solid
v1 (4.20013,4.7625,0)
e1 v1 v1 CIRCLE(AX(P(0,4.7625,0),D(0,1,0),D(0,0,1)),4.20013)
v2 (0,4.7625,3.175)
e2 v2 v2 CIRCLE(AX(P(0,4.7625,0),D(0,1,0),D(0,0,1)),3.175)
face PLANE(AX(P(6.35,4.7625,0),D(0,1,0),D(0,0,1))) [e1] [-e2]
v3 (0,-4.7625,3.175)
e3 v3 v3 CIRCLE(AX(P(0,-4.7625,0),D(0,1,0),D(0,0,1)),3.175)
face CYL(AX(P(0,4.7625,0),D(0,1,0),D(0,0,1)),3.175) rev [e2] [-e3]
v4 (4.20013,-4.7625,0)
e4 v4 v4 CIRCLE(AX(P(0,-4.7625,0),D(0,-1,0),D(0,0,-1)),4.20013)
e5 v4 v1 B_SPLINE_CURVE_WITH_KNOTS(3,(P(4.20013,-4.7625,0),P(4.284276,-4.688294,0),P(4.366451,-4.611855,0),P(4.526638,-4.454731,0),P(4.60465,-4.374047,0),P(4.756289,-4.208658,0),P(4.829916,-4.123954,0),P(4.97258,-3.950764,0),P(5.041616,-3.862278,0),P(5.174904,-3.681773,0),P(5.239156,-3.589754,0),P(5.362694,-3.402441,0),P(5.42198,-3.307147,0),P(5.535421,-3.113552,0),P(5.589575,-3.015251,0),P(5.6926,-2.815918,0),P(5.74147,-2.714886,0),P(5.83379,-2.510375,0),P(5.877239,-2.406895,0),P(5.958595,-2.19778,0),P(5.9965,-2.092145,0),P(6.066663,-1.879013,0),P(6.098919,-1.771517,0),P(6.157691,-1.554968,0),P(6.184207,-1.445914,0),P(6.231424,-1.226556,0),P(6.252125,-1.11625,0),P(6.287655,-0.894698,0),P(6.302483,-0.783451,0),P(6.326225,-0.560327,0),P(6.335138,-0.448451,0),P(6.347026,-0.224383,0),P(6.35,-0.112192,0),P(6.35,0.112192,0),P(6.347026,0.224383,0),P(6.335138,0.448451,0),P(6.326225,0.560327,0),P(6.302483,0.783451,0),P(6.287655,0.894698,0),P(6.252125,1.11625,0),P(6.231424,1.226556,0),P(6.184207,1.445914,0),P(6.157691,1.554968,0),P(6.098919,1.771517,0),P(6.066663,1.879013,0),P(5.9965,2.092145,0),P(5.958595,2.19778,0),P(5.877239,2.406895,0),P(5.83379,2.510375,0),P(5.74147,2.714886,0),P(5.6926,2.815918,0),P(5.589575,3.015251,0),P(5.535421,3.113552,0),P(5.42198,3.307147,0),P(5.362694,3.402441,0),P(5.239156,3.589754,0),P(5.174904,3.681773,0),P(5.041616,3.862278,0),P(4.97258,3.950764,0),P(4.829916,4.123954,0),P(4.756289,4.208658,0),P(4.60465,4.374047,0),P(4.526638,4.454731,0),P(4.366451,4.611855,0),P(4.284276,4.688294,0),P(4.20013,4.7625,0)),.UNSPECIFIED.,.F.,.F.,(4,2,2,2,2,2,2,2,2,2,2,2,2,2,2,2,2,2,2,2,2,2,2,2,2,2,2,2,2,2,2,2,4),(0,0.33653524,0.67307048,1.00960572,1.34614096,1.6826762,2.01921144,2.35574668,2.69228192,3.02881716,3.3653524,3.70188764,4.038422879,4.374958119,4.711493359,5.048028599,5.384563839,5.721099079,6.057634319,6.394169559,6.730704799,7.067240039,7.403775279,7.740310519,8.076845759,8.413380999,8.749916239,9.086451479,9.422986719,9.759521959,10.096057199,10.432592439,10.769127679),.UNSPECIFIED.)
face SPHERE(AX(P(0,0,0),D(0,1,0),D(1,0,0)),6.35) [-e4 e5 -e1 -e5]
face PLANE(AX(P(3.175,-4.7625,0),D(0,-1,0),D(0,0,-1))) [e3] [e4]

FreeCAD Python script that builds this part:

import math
import FreeCAD as App
import Part
import Sketcher
Q = App.Units.Quantity

doc = App.newDocument("Part")
body = doc.addObject("PartDesign::Body", "Body")

# Sketch on XY plane
sketch1 = body.newObject("Sketcher::SketchObject", "Sketch")
sketch1.AttachmentSupport = (doc.getObject("XY_Plane"), [""])
sketch1.MapMode = "FlatFace"
sketch1.addGeometry([
    Part.LineSegment(App.Vector(0, 6.35, 0), App.Vector(0, -6.35, 0)),
    Part.ArcOfCircle(Part.Circle(App.Vector(0, 0, 0), App.Vector(0, 0, 1), 6.35), math.radians(-90), math.radians(90)),
], False)
sketch1.addConstraint([
    Sketcher.Constraint("Coincident", 0, 1, 1, 2),
    Sketcher.Constraint("Coincident", 1, 1, 0, 2),
    Sketcher.Constraint("Vertical", 0),
    Sketcher.Constraint("Coincident", 1, 3, -1, 1),
    Sketcher.Constraint("PointOnObject", 0, 1, -2),
    Sketcher.Constraint("Radius", 1, Q("0.25 in")),
])
revolution = body.newObject("PartDesign::Revolution", "Revolution")
revolution.Profile = sketch1
revolution.ReferenceAxis = (sketch1, ["V_Axis"])
revolution.Angle = 360

# Sketch on XY plane
sketch2 = body.newObject("Sketcher::SketchObject", "Sketch001")
sketch2.AttachmentSupport = (doc.getObject("XY_Plane"), [""])
sketch2.MapMode = "FlatFace"
sketch2.addGeometry([
    Part.LineSegment(App.Vector(6.35, 6.35, 0), App.Vector(0, 6.35, 0)),  # 0
    Part.LineSegment(App.Vector(0, 6.35, 0), App.Vector(0, -6.35, 0)),  # 1
    Part.LineSegment(App.Vector(0, -6.35, 0), App.Vector(6.35, -6.35, 0)),  # 2
    Part.LineSegment(App.Vector(6.35, -6.35, 0), App.Vector(6.35, -4.7625, 0)),  # 3
    Part.LineSegment(App.Vector(6.35, -4.7625, 0), App.Vector(3.175, -4.7625, 0)),  # 4
    Part.LineSegment(App.Vector(3.175, -4.7625, 0), App.Vector(3.175, 4.7625, 0)),  # 5
    Part.LineSegment(App.Vector(3.175, 4.7625, 0), App.Vector(6.35, 4.7625, 0)),  # 6
    Part.LineSegment(App.Vector(6.35, 4.7625, 0), App.Vector(6.35, 6.35, 0)),  # 7
], False)
sketch2.addConstraint([
    Sketcher.Constraint("Coincident", 0, 2, 1, 1),
    Sketcher.Constraint("Coincident", 1, 2, 2, 1),
    Sketcher.Constraint("Coincident", 2, 2, 3, 1),
    Sketcher.Constraint("Coincident", 3, 2, 4, 1),
    Sketcher.Constraint("Coincident", 4, 2, 5, 1),
    Sketcher.Constraint("Coincident", 5, 2, 6, 1),
    Sketcher.Constraint("Coincident", 6, 2, 7, 1),
    Sketcher.Constraint("Coincident", 7, 2, 0, 1),
    Sketcher.Constraint("Horizontal", 0),
    Sketcher.Constraint("Vertical", 1),
    Sketcher.Constraint("Horizontal", 2),
    Sketcher.Constraint("Vertical", 3),
    Sketcher.Constraint("Horizontal", 4),
    Sketcher.Constraint("Vertical", 5),
    Sketcher.Constraint("Horizontal", 6),
    Sketcher.Constraint("Vertical", 7),
    Sketcher.Constraint("Symmetric", 0, 2, 1, 2, -1, 1),
    Sketcher.Constraint("Symmetric", 3, 2, 6, 2, -1),
    Sketcher.Constraint("DistanceY", 1, 2, 1, 1, Q("0.5 in")),
    Sketcher.Constraint("DistanceX", 0, 2, 0, 1, Q("0.25 in")),
    Sketcher.Constraint("DistanceX", 4, 2, 4, 1, Q("0.125 in")),
    Sketcher.Constraint("DistanceY", 3, 1, 3, 2, Q("0.0625 in")),
])
groove = body.newObject("PartDesign::Groove", "Groove")
groove.Profile = sketch2
groove.ReferenceAxis = (sketch2, ["V_Axis"])
groove.Angle = 360

doc.recompute()
